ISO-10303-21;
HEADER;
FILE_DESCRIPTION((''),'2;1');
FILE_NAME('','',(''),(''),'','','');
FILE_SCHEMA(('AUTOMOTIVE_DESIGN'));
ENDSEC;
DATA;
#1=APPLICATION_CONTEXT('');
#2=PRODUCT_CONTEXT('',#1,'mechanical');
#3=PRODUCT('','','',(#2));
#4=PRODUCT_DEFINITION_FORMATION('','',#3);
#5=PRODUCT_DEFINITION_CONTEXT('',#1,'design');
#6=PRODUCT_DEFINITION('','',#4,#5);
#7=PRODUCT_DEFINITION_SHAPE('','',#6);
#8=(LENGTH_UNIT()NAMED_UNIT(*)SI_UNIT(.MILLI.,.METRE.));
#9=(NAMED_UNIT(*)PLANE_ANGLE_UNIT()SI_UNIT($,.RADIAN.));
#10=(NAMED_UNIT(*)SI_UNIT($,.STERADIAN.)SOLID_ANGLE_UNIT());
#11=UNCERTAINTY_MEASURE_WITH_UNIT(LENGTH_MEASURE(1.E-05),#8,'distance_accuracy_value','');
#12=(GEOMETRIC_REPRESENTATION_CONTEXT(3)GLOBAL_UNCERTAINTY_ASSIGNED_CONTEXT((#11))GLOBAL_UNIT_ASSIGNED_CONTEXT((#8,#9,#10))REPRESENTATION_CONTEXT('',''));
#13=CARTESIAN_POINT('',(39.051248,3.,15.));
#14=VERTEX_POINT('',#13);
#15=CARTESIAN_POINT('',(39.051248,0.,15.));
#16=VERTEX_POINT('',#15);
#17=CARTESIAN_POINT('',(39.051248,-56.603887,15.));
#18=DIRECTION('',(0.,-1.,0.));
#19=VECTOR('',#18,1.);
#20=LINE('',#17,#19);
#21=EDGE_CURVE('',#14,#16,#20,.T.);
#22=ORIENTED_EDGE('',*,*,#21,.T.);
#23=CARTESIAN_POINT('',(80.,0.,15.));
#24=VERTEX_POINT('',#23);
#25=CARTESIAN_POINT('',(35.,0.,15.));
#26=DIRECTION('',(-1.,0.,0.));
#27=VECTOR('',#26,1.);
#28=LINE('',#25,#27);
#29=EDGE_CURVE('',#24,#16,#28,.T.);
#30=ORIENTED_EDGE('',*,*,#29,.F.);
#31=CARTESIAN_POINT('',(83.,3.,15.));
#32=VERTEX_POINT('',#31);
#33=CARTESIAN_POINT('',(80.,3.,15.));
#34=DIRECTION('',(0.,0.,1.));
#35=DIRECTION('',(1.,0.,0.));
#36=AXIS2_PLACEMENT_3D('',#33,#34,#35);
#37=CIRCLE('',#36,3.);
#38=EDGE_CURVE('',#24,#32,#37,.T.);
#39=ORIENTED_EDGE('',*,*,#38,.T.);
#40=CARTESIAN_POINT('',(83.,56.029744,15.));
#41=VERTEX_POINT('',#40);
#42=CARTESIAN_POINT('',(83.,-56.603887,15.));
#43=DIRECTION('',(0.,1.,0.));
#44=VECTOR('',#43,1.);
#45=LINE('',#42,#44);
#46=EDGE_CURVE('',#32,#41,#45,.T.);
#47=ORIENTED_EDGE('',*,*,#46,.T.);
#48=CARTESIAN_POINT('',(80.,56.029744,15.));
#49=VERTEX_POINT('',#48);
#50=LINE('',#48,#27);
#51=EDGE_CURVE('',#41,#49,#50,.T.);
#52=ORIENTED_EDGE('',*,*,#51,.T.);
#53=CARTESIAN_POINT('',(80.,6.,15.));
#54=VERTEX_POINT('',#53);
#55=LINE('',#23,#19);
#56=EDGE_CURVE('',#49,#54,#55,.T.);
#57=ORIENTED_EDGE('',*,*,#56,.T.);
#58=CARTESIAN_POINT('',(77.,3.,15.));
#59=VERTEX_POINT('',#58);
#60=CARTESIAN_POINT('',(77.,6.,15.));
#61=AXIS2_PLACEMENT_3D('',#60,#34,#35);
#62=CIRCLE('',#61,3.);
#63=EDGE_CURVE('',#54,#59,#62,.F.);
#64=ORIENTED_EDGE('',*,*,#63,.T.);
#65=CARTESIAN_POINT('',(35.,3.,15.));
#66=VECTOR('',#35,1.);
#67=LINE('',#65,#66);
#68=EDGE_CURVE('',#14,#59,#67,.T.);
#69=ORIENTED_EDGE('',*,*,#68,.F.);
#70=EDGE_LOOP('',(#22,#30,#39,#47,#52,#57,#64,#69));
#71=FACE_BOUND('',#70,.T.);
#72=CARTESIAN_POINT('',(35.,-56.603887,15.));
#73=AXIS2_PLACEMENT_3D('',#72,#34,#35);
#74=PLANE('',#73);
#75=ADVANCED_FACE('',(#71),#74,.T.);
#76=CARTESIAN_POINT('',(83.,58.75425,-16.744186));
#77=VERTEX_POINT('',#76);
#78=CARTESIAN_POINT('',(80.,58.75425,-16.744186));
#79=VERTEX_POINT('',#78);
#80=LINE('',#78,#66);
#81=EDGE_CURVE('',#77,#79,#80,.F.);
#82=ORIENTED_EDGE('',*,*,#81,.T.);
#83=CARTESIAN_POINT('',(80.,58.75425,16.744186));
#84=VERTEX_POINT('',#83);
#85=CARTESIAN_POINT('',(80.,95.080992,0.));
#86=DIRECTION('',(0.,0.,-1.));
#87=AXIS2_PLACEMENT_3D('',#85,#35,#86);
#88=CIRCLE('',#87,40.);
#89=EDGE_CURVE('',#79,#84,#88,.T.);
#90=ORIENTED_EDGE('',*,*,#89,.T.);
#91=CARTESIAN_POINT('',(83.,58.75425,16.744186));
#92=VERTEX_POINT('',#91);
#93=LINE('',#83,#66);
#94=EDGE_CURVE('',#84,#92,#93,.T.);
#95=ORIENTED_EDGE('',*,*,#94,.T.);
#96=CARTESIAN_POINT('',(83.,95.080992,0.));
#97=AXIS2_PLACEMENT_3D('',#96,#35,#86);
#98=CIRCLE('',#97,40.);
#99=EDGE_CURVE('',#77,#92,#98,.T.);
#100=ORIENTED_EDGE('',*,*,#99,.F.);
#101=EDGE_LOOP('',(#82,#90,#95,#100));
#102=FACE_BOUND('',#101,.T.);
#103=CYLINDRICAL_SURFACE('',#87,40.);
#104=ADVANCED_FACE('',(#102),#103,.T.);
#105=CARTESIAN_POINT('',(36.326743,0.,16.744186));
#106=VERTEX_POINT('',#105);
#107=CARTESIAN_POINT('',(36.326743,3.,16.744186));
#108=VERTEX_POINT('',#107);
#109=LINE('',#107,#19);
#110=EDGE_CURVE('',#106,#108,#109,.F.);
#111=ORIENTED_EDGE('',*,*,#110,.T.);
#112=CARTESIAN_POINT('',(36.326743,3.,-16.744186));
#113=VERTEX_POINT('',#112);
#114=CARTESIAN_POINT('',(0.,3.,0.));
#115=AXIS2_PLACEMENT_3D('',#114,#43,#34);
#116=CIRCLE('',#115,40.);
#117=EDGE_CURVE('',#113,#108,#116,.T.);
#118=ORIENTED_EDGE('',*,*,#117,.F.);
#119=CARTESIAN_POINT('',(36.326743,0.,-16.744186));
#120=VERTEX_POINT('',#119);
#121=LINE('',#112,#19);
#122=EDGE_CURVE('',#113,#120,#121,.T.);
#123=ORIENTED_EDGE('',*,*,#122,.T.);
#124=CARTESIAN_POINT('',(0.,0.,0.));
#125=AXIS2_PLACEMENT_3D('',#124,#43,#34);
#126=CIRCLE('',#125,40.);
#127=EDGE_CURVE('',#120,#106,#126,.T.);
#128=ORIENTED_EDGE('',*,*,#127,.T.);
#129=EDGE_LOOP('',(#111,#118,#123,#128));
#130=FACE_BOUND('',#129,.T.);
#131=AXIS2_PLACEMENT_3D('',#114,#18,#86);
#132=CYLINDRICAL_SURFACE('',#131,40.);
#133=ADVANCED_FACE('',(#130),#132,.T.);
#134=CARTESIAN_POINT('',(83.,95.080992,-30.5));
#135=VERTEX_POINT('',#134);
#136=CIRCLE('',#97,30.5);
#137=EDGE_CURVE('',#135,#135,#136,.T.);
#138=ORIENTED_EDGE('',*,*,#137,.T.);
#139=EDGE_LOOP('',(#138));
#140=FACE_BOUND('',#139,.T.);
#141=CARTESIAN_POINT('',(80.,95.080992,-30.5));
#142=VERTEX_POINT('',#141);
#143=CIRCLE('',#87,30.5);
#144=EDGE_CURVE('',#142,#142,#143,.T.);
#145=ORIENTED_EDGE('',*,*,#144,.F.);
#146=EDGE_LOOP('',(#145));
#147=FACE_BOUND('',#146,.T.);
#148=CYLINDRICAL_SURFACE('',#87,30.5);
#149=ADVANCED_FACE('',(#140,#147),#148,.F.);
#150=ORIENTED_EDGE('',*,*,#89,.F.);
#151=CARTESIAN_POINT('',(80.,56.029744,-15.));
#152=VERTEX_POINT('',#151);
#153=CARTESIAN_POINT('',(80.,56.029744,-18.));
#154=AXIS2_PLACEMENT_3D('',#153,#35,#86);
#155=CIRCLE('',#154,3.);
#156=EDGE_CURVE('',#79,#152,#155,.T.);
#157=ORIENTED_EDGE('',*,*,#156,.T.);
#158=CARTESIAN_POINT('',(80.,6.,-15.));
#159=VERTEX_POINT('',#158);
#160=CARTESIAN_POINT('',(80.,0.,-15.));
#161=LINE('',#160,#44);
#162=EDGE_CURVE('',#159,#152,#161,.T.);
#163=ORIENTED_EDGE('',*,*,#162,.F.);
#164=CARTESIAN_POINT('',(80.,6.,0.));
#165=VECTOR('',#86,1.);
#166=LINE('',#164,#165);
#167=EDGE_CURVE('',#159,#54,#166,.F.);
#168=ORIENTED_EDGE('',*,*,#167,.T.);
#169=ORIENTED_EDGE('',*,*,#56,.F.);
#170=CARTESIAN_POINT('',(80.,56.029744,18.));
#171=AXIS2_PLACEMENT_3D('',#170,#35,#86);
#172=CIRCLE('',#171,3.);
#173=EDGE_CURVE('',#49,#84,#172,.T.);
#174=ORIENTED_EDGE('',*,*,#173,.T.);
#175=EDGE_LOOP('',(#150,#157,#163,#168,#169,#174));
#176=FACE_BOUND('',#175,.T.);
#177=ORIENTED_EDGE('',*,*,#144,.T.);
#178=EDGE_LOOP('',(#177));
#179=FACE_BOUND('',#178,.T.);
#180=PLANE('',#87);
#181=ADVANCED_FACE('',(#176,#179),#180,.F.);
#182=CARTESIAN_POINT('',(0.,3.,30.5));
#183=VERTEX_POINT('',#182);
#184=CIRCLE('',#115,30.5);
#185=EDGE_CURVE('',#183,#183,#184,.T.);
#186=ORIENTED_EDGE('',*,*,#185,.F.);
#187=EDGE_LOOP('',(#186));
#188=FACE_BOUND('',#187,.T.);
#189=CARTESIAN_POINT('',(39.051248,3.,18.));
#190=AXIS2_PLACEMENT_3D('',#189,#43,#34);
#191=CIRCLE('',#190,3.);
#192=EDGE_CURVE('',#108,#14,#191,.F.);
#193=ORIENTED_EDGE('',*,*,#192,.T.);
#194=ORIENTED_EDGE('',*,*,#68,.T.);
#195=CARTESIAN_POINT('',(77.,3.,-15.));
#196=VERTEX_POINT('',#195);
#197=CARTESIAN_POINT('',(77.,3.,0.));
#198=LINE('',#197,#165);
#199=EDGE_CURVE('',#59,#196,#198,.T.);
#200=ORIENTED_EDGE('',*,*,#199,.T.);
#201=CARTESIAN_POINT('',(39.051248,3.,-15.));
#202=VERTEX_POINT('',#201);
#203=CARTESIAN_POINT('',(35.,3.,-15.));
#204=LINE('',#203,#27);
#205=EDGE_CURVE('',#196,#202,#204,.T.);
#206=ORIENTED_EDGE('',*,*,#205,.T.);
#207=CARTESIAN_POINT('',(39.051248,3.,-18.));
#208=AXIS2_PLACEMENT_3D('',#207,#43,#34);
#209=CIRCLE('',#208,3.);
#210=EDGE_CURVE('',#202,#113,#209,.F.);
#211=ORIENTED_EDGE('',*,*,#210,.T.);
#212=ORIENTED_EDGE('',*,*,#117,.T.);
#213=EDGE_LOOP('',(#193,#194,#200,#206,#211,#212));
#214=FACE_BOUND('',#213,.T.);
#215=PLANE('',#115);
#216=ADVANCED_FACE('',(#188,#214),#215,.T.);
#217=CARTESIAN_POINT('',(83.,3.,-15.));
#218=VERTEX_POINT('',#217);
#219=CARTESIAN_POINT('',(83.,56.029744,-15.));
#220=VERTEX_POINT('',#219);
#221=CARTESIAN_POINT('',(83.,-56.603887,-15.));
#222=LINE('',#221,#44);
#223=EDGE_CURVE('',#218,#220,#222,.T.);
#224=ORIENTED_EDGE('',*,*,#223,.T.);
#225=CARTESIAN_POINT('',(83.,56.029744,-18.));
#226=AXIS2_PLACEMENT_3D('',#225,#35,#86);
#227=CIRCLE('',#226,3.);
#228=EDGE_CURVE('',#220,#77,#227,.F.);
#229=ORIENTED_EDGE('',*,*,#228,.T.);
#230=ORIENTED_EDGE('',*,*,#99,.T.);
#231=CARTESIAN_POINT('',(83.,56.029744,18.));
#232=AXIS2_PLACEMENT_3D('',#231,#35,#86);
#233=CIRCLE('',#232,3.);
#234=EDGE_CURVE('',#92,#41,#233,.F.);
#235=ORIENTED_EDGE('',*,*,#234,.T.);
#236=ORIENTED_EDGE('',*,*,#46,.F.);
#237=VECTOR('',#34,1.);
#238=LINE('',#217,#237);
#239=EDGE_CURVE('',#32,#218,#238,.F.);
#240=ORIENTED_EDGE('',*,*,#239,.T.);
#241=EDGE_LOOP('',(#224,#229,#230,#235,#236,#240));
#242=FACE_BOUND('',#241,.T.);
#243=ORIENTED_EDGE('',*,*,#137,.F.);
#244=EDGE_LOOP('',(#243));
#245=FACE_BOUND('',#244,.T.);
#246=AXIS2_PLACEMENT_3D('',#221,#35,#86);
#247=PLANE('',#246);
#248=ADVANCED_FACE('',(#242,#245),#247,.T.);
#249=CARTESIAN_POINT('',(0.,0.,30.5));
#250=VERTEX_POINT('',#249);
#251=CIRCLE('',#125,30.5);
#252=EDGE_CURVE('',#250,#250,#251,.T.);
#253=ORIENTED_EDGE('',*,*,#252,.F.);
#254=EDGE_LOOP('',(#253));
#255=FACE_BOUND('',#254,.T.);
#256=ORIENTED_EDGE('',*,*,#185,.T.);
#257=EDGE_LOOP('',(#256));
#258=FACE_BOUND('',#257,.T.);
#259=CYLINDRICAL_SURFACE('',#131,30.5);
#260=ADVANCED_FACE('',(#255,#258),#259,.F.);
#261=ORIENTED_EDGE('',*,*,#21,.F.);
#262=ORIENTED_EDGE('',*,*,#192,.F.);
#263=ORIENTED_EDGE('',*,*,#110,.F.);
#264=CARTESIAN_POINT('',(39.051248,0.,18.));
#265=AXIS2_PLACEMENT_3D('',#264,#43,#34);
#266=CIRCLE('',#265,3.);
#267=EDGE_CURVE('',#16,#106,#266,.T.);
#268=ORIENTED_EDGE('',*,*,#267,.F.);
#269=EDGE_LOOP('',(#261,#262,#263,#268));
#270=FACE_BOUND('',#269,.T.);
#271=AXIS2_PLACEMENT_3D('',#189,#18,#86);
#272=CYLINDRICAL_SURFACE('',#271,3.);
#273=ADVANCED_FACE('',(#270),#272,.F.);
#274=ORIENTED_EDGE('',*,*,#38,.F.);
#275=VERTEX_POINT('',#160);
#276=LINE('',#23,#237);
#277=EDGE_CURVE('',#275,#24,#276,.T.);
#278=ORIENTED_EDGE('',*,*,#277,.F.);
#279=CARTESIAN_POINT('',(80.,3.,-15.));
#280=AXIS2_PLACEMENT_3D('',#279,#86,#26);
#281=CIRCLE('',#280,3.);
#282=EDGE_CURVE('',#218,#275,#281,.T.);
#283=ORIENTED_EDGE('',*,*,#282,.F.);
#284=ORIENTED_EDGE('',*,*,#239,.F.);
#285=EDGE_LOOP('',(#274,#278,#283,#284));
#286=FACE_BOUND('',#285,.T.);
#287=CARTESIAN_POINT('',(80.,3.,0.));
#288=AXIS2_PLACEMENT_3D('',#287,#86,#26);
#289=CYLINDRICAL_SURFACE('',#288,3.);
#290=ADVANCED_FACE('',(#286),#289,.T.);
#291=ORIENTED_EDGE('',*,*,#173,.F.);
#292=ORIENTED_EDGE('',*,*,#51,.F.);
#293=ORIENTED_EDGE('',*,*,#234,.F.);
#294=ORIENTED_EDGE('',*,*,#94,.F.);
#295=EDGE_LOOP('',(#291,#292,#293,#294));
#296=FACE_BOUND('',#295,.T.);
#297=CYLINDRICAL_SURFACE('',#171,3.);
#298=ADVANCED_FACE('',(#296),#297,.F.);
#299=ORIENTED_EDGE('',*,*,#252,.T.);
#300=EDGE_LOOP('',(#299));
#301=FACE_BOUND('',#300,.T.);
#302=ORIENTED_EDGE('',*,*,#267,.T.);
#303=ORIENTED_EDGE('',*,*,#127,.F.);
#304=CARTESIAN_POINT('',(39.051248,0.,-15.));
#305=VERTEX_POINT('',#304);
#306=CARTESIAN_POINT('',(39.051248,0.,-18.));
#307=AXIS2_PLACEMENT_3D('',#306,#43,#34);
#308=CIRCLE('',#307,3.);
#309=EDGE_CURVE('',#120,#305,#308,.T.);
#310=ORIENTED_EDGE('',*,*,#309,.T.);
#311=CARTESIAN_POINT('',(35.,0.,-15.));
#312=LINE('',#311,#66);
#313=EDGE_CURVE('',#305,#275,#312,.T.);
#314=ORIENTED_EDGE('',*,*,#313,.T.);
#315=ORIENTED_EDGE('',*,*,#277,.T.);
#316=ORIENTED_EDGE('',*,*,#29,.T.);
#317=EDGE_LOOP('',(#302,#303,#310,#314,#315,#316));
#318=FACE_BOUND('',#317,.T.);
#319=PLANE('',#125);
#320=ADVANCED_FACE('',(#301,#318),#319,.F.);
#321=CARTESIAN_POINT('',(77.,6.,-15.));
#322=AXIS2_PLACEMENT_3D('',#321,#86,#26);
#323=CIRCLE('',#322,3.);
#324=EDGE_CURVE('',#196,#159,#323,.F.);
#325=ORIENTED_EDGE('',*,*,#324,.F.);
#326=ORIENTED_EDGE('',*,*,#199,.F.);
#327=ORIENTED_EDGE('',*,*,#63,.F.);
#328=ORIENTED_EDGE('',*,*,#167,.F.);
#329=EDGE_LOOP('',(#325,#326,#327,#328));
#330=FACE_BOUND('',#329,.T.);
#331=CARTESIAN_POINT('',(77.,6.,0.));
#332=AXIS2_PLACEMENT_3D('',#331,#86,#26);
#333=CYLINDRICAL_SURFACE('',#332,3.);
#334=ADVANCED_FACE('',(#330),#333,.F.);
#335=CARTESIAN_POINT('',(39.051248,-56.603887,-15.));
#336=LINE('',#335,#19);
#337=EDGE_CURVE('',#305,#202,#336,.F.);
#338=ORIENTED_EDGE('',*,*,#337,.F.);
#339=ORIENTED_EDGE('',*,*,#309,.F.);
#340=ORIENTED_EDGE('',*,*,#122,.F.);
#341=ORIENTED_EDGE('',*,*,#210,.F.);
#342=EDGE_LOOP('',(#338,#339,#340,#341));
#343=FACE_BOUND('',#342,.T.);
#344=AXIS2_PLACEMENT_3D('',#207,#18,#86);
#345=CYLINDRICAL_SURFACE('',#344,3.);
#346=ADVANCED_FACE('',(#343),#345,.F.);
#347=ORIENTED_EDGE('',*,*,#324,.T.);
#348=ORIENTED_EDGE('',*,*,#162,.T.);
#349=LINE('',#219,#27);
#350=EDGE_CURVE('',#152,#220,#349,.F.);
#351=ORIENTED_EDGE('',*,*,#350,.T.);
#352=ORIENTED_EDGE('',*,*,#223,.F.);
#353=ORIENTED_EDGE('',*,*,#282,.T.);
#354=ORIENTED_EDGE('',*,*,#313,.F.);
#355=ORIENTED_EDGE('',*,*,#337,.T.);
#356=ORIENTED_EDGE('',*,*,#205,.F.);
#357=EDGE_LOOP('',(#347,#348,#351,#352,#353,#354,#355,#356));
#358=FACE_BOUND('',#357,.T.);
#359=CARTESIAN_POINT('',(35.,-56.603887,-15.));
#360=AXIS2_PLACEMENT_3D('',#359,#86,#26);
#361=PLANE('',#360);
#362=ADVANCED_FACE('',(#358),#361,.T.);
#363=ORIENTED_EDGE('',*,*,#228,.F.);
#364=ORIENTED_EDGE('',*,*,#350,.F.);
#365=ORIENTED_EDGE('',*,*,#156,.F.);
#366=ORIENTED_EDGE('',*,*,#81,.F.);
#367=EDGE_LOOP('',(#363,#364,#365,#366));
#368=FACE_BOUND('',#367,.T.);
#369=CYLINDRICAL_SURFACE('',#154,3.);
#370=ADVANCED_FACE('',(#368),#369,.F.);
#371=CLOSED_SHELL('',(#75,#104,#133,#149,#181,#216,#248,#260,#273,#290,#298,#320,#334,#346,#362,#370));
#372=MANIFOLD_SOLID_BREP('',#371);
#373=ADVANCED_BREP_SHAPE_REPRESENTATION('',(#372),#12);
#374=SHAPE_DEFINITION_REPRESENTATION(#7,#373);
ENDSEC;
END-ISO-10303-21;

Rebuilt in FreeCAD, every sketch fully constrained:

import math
import FreeCAD as App
import Part
import Sketcher

V = App.Vector
Q = App.Units.Quantity


def edges_at(feature, points):
    """Names of the edges that pass closest to the given points."""
    edges = feature.Shape.Edges
    near = lambda p: min(range(len(edges)), key=lambda i: edges[i].distToShape(Part.Vertex(*p))[0])
    return sorted({f"Edge{near(p) + 1}" for p in points})


def add_polygon(sketch, points):
    """Adds a closed chain of lines whose ends are joined by coincident constraints."""
    first, n = sketch.GeometryCount, len(points)
    for a, b in zip(points, points[1:] + points[:1]):
        sketch.addGeometry(Part.LineSegment(App.Vector(*a, 0), App.Vector(*b, 0)), False)
    for i in range(n):
        sketch.addConstraint(Sketcher.Constraint("Coincident", first + i, 2, first + (i + 1) % n, 1))

doc = App.newDocument("Part")
body = doc.addObject("PartDesign::Body", "Body")

# Sketch on XZ plane
sketch1 = body.newObject("Sketcher::SketchObject", "Sketch")
sketch1.AttachmentSupport = (doc.getObject("XZ_Plane"), [""])
sketch1.MapMode = "FlatFace"
sketch1.addGeometry([
    Part.Circle(V(0, 0, 0), V(0, 0, 1), 40),
    Part.Circle(V(0, 0, 0), V(0, 0, 1), 30),
], False)
sketch1.addConstraint([
    Sketcher.Constraint("Coincident", 0, 3, -1, 1),
    Sketcher.Constraint("Coincident", 1, 3, -1, 1),
    Sketcher.Constraint("Diameter", 0, Q("80 mm")),
    Sketcher.Constraint("Diameter", 1, Q("61 mm")),
])
pad1 = body.newObject("PartDesign::Pad", "Pad")
pad1.Profile = sketch1
pad1.Length = 3
pad1.Reversed = True

# Sketch on XZ plane
sketch2 = body.newObject("Sketcher::SketchObject", "Sketch001")
sketch2.AttachmentSupport = (doc.getObject("XZ_Plane"), [""])
sketch2.MapMode = "FlatFace"
sketch2.AttachmentOffset = App.Placement(V(0, 0, -3), App.Rotation())
add_polygon(sketch2, [(35, -15), (35, 15), (83, 15), (83, -15)])  # lines 0-3
sketch2.addConstraint([
    Sketcher.Constraint("Vertical", 0),
    Sketcher.Constraint("Horizontal", 1),
    Sketcher.Constraint("Vertical", 2),
    Sketcher.Constraint("Horizontal", 3),
    Sketcher.Constraint("DistanceX", 1, 1, 1, 2, Q("48 mm")),
    Sketcher.Constraint("DistanceY", 0, 1, 0, 2, Q("30 mm")),
    Sketcher.Constraint("DistanceX", -1, 1, 0, 2, Q("35 mm")),
    Sketcher.Constraint("DistanceY", -1, 1, 0, 2, Q("15 mm")),
])
pad2 = body.newObject("PartDesign::Pad", "Pad001")
pad2.Profile = sketch2
pad2.Length = 3

# Sketch on YZ plane
sketch3 = body.newObject("Sketcher::SketchObject", "Sketch002")
sketch3.AttachmentSupport = (doc.getObject("YZ_Plane"), [""])
sketch3.MapMode = "FlatFace"
sketch3.AttachmentOffset = App.Placement(V(0, 0, 83), App.Rotation())
sketch3.addGeometry([
    Part.LineSegment(V(0, 15, 0), V(0, -15, 0)),  # 0
    Part.LineSegment(V(0, -15, 0), V(58, -15, 0)),  # 1
    Part.ArcOfCircle(Part.Circle(V(95, 0, 0), V(0, 0, 1), 40), math.radians(-158), math.radians(158)),  # 2
    Part.LineSegment(V(58, 15, 0), V(0, 15, 0)),  # 3
    Part.Circle(V(95, 0, 0), V(0, 0, 1), 30),  # 4
], False)
sketch3.addConstraint([
    Sketcher.Constraint("Coincident", 0, 2, 1, 1),
    Sketcher.Constraint("Coincident", 1, 2, 2, 1),
    Sketcher.Constraint("Coincident", 2, 2, 3, 1),
    Sketcher.Constraint("Coincident", 3, 2, 0, 1),
    Sketcher.Constraint("Vertical", 0),
    Sketcher.Constraint("Horizontal", 1),
    Sketcher.Constraint("Horizontal", 3),
    Sketcher.Constraint("Coincident", 4, 3, 2, 3),
    Sketcher.Constraint("Symmetric", 0, 2, 3, 2, -1, 1),
    Sketcher.Constraint("PointOnObject", 2, 3, -1),
    Sketcher.Constraint("Diameter", 4, Q("61 mm")),
    Sketcher.Constraint("Radius", 2, Q("40 mm")),
    Sketcher.Constraint("DistanceX", 1, 1, 1, 2, Q("58 mm")),
    Sketcher.Constraint("DistanceY", 0, 2, 0, 1, Q("30 mm")),
])
pad3 = body.newObject("PartDesign::Pad", "Pad002")
pad3.Profile = sketch3
pad3.Length = 3
pad3.Reversed = True
doc.recompute()

fillet = body.newObject("PartDesign::Fillet", "Fillet")
fillet.Base = (pad3, edges_at(pad3, [
    (37.081, 1.5, 15),
    (37.081, 1.5, -15),
    (81.5, 58, 15),
    (81.5, 58, -15),
]))
fillet.Radius = 3
doc.recompute()

fillet2 = body.newObject("PartDesign::Fillet", "Fillet001")
fillet2.Base = (fillet, edges_at(fillet, [(83, 0, 0), (80, 3, 0)]))
fillet2.Radius = 3

doc.recompute()
